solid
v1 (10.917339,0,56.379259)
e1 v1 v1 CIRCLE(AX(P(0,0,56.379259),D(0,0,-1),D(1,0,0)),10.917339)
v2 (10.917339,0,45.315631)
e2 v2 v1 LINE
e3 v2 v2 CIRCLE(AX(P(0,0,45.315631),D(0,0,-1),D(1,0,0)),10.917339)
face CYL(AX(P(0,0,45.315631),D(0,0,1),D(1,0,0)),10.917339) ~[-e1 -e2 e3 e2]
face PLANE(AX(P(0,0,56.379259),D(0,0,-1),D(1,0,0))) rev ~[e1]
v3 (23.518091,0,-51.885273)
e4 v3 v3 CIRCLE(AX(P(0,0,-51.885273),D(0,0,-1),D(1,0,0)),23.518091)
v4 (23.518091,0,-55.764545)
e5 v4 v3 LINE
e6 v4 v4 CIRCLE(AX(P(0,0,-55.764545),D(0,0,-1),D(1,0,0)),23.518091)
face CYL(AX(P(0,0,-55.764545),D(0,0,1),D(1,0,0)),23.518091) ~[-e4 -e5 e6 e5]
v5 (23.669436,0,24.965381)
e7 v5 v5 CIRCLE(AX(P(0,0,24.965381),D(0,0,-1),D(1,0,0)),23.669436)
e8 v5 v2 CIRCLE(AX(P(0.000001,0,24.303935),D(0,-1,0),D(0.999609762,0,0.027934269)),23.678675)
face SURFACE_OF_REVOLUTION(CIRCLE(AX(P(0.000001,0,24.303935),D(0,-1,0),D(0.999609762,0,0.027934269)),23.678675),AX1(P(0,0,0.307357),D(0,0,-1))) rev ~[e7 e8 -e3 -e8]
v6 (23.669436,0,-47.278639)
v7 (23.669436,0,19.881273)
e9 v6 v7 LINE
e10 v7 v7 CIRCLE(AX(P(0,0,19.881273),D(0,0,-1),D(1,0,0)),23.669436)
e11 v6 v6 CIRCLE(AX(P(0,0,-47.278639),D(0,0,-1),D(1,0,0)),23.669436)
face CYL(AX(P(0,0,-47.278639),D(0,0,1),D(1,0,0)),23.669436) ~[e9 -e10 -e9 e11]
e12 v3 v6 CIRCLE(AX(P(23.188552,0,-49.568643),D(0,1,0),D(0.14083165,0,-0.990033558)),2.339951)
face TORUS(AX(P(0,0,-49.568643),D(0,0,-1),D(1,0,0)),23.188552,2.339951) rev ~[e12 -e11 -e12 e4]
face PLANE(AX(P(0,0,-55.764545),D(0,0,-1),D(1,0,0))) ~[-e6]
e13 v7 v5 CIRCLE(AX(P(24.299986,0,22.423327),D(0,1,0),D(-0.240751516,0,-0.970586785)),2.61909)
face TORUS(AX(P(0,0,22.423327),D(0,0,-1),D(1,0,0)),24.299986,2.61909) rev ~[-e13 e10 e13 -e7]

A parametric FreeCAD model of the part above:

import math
import FreeCAD as App
import Part
import Sketcher
Q = App.Units.Quantity

doc = App.newDocument("Part")
body = doc.addObject("PartDesign::Body", "Body")

# Sketch on XZ plane
sketch1 = doc.addObject("Sketcher::SketchObject", "Sketch")
body.addObject(sketch1)
sketch1.AttachmentSupport = (doc.XZ_Plane, [""])
sketch1.MapMode = "FlatFace"
sketch1.addGeometry([
    Part.LineSegment(App.Vector(10.9, 56.4, 0), App.Vector(0, 56.4, 0)),  # 0
    Part.LineSegment(App.Vector(0, 56.4, 0), App.Vector(0, -55.8, 0)),  # 1
    Part.LineSegment(App.Vector(0, -55.8, 0), App.Vector(23.5, -55.8, 0)),  # 2
    Part.LineSegment(App.Vector(23.5, -55.8, 0), App.Vector(23.5, -51.9, 0)),  # 3
    Part.ArcOfCircle(Part.Circle(App.Vector(23.2, -49.6, 0), App.Vector(0, 0, 1), 2.3), math.radians(78), math.radians(278)),  # 4
    Part.LineSegment(App.Vector(23.7, -47.3, 0), App.Vector(23.7, 19.9, 0)),  # 5
    Part.ArcOfCircle(Part.Circle(App.Vector(24.3, 22.4, 0), App.Vector(0, 0, 1), 2.6), math.radians(104), math.radians(256)),  # 6
    Part.ArcOfCircle(Part.Circle(App.Vector(0, 24.3, 0), App.Vector(0, 0, 1), 23.7), math.radians(2), math.radians(63)),  # 7
    Part.LineSegment(App.Vector(10.9, 45.3, 0), App.Vector(10.9, 56.4, 0)),  # 8
], False)
sketch1.addConstraint([
    Sketcher.Constraint("Coincident", 0, 2, 1, 1),
    Sketcher.Constraint("Coincident", 1, 2, 2, 1),
    Sketcher.Constraint("Coincident", 2, 2, 3, 1),
    Sketcher.Constraint("Coincident", 3, 2, 4, 2),
    Sketcher.Constraint("Coincident", 4, 1, 5, 1),
    Sketcher.Constraint("Coincident", 5, 2, 6, 2),
    Sketcher.Constraint("Coincident", 6, 1, 7, 1),
    Sketcher.Constraint("Coincident", 7, 2, 8, 1),
    Sketcher.Constraint("Coincident", 8, 2, 0, 1),
    Sketcher.Constraint("Horizontal", 0),
    Sketcher.Constraint("Vertical", 1),
    Sketcher.Constraint("Horizontal", 2),
    Sketcher.Constraint("Vertical", 3),
    Sketcher.Constraint("Vertical", 5),
    Sketcher.Constraint("Vertical", 8),
    Sketcher.Constraint("PointOnObject", 7, 3, -2),
    Sketcher.Constraint("PointOnObject", 0, 2, -2),
    Sketcher.Constraint("Vertical", 5, 2, 6, 1),
    Sketcher.Constraint("Radius", 4, Q("2.339951 mm")),
    Sketcher.Constraint("Radius", 6, Q("2.61909 mm")),
    Sketcher.Constraint("Radius", 7, Q("23.678675 mm")),
    Sketcher.Constraint("DistanceX", 0, 2, 0, 1, Q("10.917339 mm")),
    Sketcher.Constraint("DistanceX", 2, 1, 2, 2, Q("23.518091 mm")),
    Sketcher.Constraint("DistanceY", 5, 1, 5, 2, Q("67.159912 mm")),
    Sketcher.Constraint("DistanceY", 1, 2, 4, 3, Q("6.195902 mm")),
    Sketcher.Constraint("DistanceY", 3, 2, 6, 3, Q("74.3086 mm")),
    Sketcher.Constraint("DistanceY", 1, 2, 1, 1, Q("112.143804 mm")),
    Sketcher.Constraint("DistanceY", 3, 1, 3, 2, Q("3.879272 mm")),
    Sketcher.Constraint("DistanceY", 8, 1, 8, 2, Q("11.063628 mm")),
    Sketcher.Constraint("DistanceY", -1, 1, 0, 2, Q("56.379259 mm")),
])
revolution = doc.addObject("PartDesign::Revolution", "Revolution")
body.addObject(revolution)
revolution.Profile = sketch1
revolution.ReferenceAxis = (sketch1, ["V_Axis"])
revolution.Angle = 360

doc.recompute()
